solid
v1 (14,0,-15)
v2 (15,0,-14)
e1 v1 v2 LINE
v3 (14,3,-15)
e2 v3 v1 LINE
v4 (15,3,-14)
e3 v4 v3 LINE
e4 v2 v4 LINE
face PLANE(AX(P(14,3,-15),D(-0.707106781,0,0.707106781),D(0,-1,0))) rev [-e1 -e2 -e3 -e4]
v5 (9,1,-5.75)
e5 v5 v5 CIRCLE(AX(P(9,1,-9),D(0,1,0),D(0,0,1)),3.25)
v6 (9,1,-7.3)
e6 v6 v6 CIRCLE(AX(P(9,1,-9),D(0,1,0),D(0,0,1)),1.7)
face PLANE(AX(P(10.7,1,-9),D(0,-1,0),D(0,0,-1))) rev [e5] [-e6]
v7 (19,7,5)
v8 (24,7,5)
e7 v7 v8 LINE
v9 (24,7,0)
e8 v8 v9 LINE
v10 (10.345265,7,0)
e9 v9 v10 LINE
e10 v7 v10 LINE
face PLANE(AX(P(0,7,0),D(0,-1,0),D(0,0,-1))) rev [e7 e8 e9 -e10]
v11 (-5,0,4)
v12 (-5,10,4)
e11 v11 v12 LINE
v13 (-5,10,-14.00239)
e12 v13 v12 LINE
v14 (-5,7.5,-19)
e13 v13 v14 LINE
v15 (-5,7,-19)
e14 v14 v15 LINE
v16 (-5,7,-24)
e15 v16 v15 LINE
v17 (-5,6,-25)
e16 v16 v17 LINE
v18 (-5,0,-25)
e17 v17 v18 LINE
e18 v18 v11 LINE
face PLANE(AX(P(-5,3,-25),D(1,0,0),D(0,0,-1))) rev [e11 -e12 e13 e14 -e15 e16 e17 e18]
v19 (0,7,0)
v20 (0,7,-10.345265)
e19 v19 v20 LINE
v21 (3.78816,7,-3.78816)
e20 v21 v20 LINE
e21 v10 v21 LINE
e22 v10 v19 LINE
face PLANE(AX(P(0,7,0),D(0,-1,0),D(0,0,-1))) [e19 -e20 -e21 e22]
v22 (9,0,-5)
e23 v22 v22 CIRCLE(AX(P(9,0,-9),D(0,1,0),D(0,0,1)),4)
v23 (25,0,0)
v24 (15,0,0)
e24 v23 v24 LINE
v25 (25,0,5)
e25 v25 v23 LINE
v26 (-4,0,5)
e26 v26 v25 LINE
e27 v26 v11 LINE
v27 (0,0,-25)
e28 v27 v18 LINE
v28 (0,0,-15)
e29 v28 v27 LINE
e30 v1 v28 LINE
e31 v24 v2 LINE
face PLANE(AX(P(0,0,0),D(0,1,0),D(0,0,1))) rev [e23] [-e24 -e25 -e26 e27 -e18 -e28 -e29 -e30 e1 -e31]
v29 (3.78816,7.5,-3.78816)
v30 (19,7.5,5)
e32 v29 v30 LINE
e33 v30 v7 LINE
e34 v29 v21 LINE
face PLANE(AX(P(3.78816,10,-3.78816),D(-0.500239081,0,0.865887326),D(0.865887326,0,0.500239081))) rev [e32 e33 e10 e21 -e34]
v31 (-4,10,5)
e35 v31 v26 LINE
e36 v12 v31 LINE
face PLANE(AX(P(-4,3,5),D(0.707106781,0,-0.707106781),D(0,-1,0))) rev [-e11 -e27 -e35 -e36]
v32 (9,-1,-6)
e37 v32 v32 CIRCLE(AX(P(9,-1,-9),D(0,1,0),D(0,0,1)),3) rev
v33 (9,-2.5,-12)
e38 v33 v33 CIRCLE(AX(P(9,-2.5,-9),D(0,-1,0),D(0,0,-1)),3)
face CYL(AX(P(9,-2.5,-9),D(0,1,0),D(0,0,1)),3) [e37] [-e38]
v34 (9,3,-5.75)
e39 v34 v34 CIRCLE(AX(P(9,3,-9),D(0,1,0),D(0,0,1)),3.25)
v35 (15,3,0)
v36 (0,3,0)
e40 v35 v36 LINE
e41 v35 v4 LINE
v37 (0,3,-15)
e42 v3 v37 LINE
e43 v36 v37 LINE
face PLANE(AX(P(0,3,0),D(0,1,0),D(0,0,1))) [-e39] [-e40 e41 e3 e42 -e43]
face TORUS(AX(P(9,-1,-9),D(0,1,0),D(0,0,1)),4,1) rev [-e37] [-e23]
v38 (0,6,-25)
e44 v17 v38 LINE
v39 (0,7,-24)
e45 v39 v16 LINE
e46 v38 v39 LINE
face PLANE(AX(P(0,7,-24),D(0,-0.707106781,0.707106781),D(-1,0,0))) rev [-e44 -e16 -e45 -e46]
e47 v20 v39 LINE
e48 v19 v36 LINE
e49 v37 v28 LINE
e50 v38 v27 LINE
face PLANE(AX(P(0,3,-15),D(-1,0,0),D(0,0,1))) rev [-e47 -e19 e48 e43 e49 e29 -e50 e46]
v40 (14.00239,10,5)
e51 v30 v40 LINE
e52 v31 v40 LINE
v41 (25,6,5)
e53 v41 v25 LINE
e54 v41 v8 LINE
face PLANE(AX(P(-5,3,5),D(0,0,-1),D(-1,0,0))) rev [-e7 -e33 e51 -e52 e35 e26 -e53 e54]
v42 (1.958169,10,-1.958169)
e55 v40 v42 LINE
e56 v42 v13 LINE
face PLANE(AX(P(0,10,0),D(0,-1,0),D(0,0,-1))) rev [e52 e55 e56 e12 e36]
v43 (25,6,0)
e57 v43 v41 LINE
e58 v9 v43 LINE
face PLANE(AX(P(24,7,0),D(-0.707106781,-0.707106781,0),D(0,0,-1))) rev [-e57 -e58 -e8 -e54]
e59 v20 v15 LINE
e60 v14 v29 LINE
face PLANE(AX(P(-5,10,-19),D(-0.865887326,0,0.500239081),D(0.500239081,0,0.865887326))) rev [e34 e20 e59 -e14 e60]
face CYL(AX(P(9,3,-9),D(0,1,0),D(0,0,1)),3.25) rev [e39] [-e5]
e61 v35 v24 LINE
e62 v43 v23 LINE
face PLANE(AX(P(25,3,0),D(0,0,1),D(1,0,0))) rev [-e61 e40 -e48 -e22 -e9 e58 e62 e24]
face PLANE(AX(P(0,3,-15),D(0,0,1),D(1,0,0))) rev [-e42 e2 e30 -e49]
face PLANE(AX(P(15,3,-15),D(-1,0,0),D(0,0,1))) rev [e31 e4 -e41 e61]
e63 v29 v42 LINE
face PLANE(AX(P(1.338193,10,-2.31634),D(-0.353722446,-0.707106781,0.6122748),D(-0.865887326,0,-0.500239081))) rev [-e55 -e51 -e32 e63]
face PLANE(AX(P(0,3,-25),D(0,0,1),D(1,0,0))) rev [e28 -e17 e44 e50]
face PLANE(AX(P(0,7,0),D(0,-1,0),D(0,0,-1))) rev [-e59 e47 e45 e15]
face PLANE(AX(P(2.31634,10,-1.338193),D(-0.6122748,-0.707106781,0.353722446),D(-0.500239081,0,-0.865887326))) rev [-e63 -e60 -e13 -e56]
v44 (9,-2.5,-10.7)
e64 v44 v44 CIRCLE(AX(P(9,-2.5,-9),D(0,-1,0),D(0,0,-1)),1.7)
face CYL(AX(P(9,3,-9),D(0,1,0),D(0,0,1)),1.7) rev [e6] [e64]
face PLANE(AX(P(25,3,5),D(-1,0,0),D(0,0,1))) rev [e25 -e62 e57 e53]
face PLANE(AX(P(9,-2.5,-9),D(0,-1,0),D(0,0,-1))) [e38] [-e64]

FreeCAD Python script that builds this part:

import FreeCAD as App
import Part
import Sketcher

V = App.Vector
Q = App.Units.Quantity


def edges_at(feature, points):
    """Names of the edges that pass closest to the given points."""
    edges = feature.Shape.Edges
    near = lambda p: min(range(len(edges)), key=lambda i: edges[i].distToShape(Part.Vertex(*p))[0])
    return sorted({f"Edge{near(p) + 1}" for p in points})

doc = App.newDocument("Part")
body = doc.addObject("PartDesign::Body", "Body")

# Sketch on XZ plane
sketch1 = body.newObject("Sketcher::SketchObject", "Sketch")
sketch1.AttachmentSupport = (doc.getObject("XZ_Plane"), [""])
sketch1.MapMode = "FlatFace"
sketch1.addGeometry([
    Part.LineSegment(V(0, -15, 0), V(0, -25, 0)),  # 0
    Part.LineSegment(V(0, -25, 0), V(-5, -25, 0)),  # 1
    Part.LineSegment(V(-5, -25, 0), V(-5, 5, 0)),  # 2
    Part.LineSegment(V(-5, 5, 0), V(25, 5, 0)),  # 3
    Part.LineSegment(V(25, 5, 0), V(25, 0, 0)),  # 4
    Part.LineSegment(V(25, 0, 0), V(15, 0, 0)),  # 5
    Part.LineSegment(V(15, 0, 0), V(15, -15, 0)),  # 6
    Part.LineSegment(V(15, -15, 0), V(0, -15, 0)),  # 7
], False)
sketch1.addConstraint([
    Sketcher.Constraint("Coincident", 0, 2, 1, 1),
    Sketcher.Constraint("Coincident", 1, 2, 2, 1),
    Sketcher.Constraint("Coincident", 2, 2, 3, 1),
    Sketcher.Constraint("Coincident", 3, 2, 4, 1),
    Sketcher.Constraint("Coincident", 4, 2, 5, 1),
    Sketcher.Constraint("Coincident", 5, 2, 6, 1),
    Sketcher.Constraint("Coincident", 6, 2, 7, 1),
    Sketcher.Constraint("Coincident", 7, 2, 0, 1),
    Sketcher.Constraint("Vertical", 0),
    Sketcher.Constraint("Horizontal", 1),
    Sketcher.Constraint("Vertical", 2),
    Sketcher.Constraint("Horizontal", 3),
    Sketcher.Constraint("Vertical", 4),
    Sketcher.Constraint("Horizontal", 5),
    Sketcher.Constraint("Vertical", 6),
    Sketcher.Constraint("Horizontal", 7),
    Sketcher.Constraint("PointOnObject", 0, 2, -2),
    Sketcher.Constraint("PointOnObject", 4, 2, -1),
    Sketcher.Constraint("Equal", 5, 0),
    Sketcher.Constraint("Equal", 3, 2),
    Sketcher.Constraint("Equal", 1, 4),
    Sketcher.Constraint("DistanceX", 1, 2, 1, 1, Q("5 mm")),
    Sketcher.Constraint("DistanceX", 3, 1, 3, 2, Q("30 mm")),
    Sketcher.Constraint("DistanceX", 5, 2, 5, 1, Q("10 mm")),
])
pad1 = body.newObject("PartDesign::Pad", "Pad")
pad1.Profile = sketch1
pad1.Length = 3
pad1.Reversed = True

# Sketch on XZ plane
sketch2 = body.newObject("Sketcher::SketchObject", "Sketch001")
sketch2.AttachmentSupport = (doc.getObject("XZ_Plane"), [""])
sketch2.MapMode = "FlatFace"
sketch2.AttachmentOffset = App.Placement(V(0, 0, -3), App.Rotation())
sketch2.addGeometry([
    Part.LineSegment(V(0, -25, 0), V(-5, -25, 0)),  # 0
    Part.LineSegment(V(-5, -25, 0), V(-5, 5, 0)),  # 1
    Part.LineSegment(V(-5, 5, 0), V(25, 5, 0)),  # 2
    Part.LineSegment(V(25, 5, 0), V(25, 0, 0)),  # 3
    Part.LineSegment(V(25, 0, 0), V(0, 0, 0)),  # 4
    Part.LineSegment(V(0, 0, 0), V(0, -25, 0)),  # 5
], False)
sketch2.addConstraint([
    Sketcher.Constraint("Coincident", 0, 2, 1, 1),
    Sketcher.Constraint("Coincident", 1, 2, 2, 1),
    Sketcher.Constraint("Coincident", 2, 2, 3, 1),
    Sketcher.Constraint("Coincident", 3, 2, 4, 1),
    Sketcher.Constraint("Coincident", 4, 2, 5, 1),
    Sketcher.Constraint("Coincident", 5, 2, 0, 1),
    Sketcher.Constraint("Horizontal", 0),
    Sketcher.Constraint("Vertical", 1),
    Sketcher.Constraint("Horizontal", 2),
    Sketcher.Constraint("Vertical", 3),
    Sketcher.Constraint("Horizontal", 4),
    Sketcher.Constraint("Vertical", 5),
    Sketcher.Constraint("Coincident", 4, 2, -1, 1),
    Sketcher.Constraint("Equal", 2, 1),
    Sketcher.Constraint("Equal", 0, 3),
    Sketcher.Constraint("DistanceX", 0, 2, 0, 1, Q("5 mm")),
    Sketcher.Constraint("DistanceX", 2, 1, 2, 2, Q("30 mm")),
])
pad2 = body.newObject("PartDesign::Pad", "Pad001")
pad2.Profile = sketch2
pad2.Length = 4
pad2.Reversed = True

# Sketch on XZ plane
sketch3 = body.newObject("Sketcher::SketchObject", "Sketch002")
sketch3.AttachmentSupport = (doc.getObject("XZ_Plane"), [""])
sketch3.MapMode = "FlatFace"
sketch3.AttachmentOffset = App.Placement(V(0, 0, -3), App.Rotation())
sketch3.addGeometry(Part.Circle(V(9, -9, 0), V(0, 0, 1), 1.7), False)
sketch3.addConstraint([
    Sketcher.Constraint("Diameter", 0, Q("3.4 mm")),
    Sketcher.Constraint("DistanceX", -1, 1, 0, 3, Q("9 mm")),
    Sketcher.Constraint("DistanceY", 0, 3, -1, 1, Q("9 mm")),
])
doc.recompute()
hole = body.newObject("PartDesign::Hole", "Hole")
hole.Profile = sketch3
hole.ThreadType = "None"
hole.Diameter = 3.4
hole.DepthType = "Dimension"
hole.Depth = 40
hole.DrillPoint = "Angled"
hole.DrillPointAngle = 118
hole.HoleCutType = "Counterbore"
hole.HoleCutDiameter = 6.5
hole.HoleCutDepth = 2
hole.Reversed = True

# Sketch on XZ plane
sketch4 = body.newObject("Sketcher::SketchObject", "Sketch003")
sketch4.AttachmentSupport = (doc.getObject("XZ_Plane"), [""])
sketch4.MapMode = "FlatFace"
sketch4.AttachmentOffset = App.Placement(V(0, 0, 2.5), App.Rotation())
sketch4.addGeometry([
    Part.Circle(V(9, -9, 0), V(0, 0, 1), 3),
    Part.Circle(V(9, -9, 0), V(0, 0, 1), 1.7),
], False)
sketch4.addConstraint([
    Sketcher.Constraint("Coincident", 1, 3, 0, 3),
    Sketcher.Constraint("Diameter", 0, Q("6 mm")),
    Sketcher.Constraint("Diameter", 1, Q("3.4 mm")),
    Sketcher.Constraint("DistanceX", -1, 1, 0, 3, Q("9 mm")),
    Sketcher.Constraint("DistanceY", 0, 3, -1, 1, Q("9 mm")),
])
pad3 = body.newObject("PartDesign::Pad", "Pad002")
pad3.Profile = sketch4
pad3.Length = 2.5
pad3.Reversed = True

# Sketch on XZ plane
sketch5 = body.newObject("Sketcher::SketchObject", "Sketch004")
sketch5.AttachmentSupport = (doc.getObject("XZ_Plane"), [""])
sketch5.MapMode = "FlatFace"
sketch5.AttachmentOffset = App.Placement(V(0, 0, -7), App.Rotation())
sketch5.addGeometry([
    Part.LineSegment(V(-5, -19, 0), V(-5, 5, 0)),
    Part.LineSegment(V(-5, 5, 0), V(19, 5, 0)),
    Part.LineSegment(V(19, 5, 0), V(4, -4, 0)),
    Part.LineSegment(V(4, -4, 0), V(-5, -19, 0)),
], False)
sketch5.addConstraint([
    Sketcher.Constraint("Coincident", 0, 2, 1, 1),
    Sketcher.Constraint("Coincident", 1, 2, 2, 1),
    Sketcher.Constraint("Coincident", 2, 2, 3, 1),
    Sketcher.Constraint("Coincident", 3, 2, 0, 1),
    Sketcher.Constraint("Vertical", 0),
    Sketcher.Constraint("Horizontal", 1),
    Sketcher.Constraint("Equal", 1, 0),
    Sketcher.Constraint("Equal", 2, 3),
    Sketcher.Constraint("DistanceX", 1, 1, 1, 2, Q("24 mm")),
    Sketcher.Constraint("DistanceX", 0, 2, -1, 1, Q("5 mm")),
    Sketcher.Constraint("DistanceY", -1, 1, 0, 2, Q("5 mm")),
    Sketcher.Constraint("Distance", 2, Q("17.56792 mm")),
])
pad4 = body.newObject("PartDesign::Pad", "Pad003")
pad4.Profile = sketch5
pad4.Length = 3
pad4.Reversed = True
doc.recompute()

chamfer = body.newObject("PartDesign::Chamfer", "Chamfer")
chamfer.Base = (pad4, edges_at(pad4, [(11.394, 10, 0.606), (-0.606, 10, -11.394)]))
chamfer.Size = 2.5
doc.recompute()

chamfer2 = body.newObject("PartDesign::Chamfer", "Chamfer001")
chamfer2.Base = (chamfer, edges_at(chamfer, [
    (15, 1.5, -15),
    (-5, 5, 5),
    (25, 7, 2.5),
    (-2.5, 7, -25),
]))
chamfer2.Size = 1
doc.recompute()

fillet = body.newObject("PartDesign::Fillet", "Fillet")
fillet.Base = (chamfer2, edges_at(chamfer2, [(9, 0, -12)]))
fillet.Radius = 1

doc.recompute()
